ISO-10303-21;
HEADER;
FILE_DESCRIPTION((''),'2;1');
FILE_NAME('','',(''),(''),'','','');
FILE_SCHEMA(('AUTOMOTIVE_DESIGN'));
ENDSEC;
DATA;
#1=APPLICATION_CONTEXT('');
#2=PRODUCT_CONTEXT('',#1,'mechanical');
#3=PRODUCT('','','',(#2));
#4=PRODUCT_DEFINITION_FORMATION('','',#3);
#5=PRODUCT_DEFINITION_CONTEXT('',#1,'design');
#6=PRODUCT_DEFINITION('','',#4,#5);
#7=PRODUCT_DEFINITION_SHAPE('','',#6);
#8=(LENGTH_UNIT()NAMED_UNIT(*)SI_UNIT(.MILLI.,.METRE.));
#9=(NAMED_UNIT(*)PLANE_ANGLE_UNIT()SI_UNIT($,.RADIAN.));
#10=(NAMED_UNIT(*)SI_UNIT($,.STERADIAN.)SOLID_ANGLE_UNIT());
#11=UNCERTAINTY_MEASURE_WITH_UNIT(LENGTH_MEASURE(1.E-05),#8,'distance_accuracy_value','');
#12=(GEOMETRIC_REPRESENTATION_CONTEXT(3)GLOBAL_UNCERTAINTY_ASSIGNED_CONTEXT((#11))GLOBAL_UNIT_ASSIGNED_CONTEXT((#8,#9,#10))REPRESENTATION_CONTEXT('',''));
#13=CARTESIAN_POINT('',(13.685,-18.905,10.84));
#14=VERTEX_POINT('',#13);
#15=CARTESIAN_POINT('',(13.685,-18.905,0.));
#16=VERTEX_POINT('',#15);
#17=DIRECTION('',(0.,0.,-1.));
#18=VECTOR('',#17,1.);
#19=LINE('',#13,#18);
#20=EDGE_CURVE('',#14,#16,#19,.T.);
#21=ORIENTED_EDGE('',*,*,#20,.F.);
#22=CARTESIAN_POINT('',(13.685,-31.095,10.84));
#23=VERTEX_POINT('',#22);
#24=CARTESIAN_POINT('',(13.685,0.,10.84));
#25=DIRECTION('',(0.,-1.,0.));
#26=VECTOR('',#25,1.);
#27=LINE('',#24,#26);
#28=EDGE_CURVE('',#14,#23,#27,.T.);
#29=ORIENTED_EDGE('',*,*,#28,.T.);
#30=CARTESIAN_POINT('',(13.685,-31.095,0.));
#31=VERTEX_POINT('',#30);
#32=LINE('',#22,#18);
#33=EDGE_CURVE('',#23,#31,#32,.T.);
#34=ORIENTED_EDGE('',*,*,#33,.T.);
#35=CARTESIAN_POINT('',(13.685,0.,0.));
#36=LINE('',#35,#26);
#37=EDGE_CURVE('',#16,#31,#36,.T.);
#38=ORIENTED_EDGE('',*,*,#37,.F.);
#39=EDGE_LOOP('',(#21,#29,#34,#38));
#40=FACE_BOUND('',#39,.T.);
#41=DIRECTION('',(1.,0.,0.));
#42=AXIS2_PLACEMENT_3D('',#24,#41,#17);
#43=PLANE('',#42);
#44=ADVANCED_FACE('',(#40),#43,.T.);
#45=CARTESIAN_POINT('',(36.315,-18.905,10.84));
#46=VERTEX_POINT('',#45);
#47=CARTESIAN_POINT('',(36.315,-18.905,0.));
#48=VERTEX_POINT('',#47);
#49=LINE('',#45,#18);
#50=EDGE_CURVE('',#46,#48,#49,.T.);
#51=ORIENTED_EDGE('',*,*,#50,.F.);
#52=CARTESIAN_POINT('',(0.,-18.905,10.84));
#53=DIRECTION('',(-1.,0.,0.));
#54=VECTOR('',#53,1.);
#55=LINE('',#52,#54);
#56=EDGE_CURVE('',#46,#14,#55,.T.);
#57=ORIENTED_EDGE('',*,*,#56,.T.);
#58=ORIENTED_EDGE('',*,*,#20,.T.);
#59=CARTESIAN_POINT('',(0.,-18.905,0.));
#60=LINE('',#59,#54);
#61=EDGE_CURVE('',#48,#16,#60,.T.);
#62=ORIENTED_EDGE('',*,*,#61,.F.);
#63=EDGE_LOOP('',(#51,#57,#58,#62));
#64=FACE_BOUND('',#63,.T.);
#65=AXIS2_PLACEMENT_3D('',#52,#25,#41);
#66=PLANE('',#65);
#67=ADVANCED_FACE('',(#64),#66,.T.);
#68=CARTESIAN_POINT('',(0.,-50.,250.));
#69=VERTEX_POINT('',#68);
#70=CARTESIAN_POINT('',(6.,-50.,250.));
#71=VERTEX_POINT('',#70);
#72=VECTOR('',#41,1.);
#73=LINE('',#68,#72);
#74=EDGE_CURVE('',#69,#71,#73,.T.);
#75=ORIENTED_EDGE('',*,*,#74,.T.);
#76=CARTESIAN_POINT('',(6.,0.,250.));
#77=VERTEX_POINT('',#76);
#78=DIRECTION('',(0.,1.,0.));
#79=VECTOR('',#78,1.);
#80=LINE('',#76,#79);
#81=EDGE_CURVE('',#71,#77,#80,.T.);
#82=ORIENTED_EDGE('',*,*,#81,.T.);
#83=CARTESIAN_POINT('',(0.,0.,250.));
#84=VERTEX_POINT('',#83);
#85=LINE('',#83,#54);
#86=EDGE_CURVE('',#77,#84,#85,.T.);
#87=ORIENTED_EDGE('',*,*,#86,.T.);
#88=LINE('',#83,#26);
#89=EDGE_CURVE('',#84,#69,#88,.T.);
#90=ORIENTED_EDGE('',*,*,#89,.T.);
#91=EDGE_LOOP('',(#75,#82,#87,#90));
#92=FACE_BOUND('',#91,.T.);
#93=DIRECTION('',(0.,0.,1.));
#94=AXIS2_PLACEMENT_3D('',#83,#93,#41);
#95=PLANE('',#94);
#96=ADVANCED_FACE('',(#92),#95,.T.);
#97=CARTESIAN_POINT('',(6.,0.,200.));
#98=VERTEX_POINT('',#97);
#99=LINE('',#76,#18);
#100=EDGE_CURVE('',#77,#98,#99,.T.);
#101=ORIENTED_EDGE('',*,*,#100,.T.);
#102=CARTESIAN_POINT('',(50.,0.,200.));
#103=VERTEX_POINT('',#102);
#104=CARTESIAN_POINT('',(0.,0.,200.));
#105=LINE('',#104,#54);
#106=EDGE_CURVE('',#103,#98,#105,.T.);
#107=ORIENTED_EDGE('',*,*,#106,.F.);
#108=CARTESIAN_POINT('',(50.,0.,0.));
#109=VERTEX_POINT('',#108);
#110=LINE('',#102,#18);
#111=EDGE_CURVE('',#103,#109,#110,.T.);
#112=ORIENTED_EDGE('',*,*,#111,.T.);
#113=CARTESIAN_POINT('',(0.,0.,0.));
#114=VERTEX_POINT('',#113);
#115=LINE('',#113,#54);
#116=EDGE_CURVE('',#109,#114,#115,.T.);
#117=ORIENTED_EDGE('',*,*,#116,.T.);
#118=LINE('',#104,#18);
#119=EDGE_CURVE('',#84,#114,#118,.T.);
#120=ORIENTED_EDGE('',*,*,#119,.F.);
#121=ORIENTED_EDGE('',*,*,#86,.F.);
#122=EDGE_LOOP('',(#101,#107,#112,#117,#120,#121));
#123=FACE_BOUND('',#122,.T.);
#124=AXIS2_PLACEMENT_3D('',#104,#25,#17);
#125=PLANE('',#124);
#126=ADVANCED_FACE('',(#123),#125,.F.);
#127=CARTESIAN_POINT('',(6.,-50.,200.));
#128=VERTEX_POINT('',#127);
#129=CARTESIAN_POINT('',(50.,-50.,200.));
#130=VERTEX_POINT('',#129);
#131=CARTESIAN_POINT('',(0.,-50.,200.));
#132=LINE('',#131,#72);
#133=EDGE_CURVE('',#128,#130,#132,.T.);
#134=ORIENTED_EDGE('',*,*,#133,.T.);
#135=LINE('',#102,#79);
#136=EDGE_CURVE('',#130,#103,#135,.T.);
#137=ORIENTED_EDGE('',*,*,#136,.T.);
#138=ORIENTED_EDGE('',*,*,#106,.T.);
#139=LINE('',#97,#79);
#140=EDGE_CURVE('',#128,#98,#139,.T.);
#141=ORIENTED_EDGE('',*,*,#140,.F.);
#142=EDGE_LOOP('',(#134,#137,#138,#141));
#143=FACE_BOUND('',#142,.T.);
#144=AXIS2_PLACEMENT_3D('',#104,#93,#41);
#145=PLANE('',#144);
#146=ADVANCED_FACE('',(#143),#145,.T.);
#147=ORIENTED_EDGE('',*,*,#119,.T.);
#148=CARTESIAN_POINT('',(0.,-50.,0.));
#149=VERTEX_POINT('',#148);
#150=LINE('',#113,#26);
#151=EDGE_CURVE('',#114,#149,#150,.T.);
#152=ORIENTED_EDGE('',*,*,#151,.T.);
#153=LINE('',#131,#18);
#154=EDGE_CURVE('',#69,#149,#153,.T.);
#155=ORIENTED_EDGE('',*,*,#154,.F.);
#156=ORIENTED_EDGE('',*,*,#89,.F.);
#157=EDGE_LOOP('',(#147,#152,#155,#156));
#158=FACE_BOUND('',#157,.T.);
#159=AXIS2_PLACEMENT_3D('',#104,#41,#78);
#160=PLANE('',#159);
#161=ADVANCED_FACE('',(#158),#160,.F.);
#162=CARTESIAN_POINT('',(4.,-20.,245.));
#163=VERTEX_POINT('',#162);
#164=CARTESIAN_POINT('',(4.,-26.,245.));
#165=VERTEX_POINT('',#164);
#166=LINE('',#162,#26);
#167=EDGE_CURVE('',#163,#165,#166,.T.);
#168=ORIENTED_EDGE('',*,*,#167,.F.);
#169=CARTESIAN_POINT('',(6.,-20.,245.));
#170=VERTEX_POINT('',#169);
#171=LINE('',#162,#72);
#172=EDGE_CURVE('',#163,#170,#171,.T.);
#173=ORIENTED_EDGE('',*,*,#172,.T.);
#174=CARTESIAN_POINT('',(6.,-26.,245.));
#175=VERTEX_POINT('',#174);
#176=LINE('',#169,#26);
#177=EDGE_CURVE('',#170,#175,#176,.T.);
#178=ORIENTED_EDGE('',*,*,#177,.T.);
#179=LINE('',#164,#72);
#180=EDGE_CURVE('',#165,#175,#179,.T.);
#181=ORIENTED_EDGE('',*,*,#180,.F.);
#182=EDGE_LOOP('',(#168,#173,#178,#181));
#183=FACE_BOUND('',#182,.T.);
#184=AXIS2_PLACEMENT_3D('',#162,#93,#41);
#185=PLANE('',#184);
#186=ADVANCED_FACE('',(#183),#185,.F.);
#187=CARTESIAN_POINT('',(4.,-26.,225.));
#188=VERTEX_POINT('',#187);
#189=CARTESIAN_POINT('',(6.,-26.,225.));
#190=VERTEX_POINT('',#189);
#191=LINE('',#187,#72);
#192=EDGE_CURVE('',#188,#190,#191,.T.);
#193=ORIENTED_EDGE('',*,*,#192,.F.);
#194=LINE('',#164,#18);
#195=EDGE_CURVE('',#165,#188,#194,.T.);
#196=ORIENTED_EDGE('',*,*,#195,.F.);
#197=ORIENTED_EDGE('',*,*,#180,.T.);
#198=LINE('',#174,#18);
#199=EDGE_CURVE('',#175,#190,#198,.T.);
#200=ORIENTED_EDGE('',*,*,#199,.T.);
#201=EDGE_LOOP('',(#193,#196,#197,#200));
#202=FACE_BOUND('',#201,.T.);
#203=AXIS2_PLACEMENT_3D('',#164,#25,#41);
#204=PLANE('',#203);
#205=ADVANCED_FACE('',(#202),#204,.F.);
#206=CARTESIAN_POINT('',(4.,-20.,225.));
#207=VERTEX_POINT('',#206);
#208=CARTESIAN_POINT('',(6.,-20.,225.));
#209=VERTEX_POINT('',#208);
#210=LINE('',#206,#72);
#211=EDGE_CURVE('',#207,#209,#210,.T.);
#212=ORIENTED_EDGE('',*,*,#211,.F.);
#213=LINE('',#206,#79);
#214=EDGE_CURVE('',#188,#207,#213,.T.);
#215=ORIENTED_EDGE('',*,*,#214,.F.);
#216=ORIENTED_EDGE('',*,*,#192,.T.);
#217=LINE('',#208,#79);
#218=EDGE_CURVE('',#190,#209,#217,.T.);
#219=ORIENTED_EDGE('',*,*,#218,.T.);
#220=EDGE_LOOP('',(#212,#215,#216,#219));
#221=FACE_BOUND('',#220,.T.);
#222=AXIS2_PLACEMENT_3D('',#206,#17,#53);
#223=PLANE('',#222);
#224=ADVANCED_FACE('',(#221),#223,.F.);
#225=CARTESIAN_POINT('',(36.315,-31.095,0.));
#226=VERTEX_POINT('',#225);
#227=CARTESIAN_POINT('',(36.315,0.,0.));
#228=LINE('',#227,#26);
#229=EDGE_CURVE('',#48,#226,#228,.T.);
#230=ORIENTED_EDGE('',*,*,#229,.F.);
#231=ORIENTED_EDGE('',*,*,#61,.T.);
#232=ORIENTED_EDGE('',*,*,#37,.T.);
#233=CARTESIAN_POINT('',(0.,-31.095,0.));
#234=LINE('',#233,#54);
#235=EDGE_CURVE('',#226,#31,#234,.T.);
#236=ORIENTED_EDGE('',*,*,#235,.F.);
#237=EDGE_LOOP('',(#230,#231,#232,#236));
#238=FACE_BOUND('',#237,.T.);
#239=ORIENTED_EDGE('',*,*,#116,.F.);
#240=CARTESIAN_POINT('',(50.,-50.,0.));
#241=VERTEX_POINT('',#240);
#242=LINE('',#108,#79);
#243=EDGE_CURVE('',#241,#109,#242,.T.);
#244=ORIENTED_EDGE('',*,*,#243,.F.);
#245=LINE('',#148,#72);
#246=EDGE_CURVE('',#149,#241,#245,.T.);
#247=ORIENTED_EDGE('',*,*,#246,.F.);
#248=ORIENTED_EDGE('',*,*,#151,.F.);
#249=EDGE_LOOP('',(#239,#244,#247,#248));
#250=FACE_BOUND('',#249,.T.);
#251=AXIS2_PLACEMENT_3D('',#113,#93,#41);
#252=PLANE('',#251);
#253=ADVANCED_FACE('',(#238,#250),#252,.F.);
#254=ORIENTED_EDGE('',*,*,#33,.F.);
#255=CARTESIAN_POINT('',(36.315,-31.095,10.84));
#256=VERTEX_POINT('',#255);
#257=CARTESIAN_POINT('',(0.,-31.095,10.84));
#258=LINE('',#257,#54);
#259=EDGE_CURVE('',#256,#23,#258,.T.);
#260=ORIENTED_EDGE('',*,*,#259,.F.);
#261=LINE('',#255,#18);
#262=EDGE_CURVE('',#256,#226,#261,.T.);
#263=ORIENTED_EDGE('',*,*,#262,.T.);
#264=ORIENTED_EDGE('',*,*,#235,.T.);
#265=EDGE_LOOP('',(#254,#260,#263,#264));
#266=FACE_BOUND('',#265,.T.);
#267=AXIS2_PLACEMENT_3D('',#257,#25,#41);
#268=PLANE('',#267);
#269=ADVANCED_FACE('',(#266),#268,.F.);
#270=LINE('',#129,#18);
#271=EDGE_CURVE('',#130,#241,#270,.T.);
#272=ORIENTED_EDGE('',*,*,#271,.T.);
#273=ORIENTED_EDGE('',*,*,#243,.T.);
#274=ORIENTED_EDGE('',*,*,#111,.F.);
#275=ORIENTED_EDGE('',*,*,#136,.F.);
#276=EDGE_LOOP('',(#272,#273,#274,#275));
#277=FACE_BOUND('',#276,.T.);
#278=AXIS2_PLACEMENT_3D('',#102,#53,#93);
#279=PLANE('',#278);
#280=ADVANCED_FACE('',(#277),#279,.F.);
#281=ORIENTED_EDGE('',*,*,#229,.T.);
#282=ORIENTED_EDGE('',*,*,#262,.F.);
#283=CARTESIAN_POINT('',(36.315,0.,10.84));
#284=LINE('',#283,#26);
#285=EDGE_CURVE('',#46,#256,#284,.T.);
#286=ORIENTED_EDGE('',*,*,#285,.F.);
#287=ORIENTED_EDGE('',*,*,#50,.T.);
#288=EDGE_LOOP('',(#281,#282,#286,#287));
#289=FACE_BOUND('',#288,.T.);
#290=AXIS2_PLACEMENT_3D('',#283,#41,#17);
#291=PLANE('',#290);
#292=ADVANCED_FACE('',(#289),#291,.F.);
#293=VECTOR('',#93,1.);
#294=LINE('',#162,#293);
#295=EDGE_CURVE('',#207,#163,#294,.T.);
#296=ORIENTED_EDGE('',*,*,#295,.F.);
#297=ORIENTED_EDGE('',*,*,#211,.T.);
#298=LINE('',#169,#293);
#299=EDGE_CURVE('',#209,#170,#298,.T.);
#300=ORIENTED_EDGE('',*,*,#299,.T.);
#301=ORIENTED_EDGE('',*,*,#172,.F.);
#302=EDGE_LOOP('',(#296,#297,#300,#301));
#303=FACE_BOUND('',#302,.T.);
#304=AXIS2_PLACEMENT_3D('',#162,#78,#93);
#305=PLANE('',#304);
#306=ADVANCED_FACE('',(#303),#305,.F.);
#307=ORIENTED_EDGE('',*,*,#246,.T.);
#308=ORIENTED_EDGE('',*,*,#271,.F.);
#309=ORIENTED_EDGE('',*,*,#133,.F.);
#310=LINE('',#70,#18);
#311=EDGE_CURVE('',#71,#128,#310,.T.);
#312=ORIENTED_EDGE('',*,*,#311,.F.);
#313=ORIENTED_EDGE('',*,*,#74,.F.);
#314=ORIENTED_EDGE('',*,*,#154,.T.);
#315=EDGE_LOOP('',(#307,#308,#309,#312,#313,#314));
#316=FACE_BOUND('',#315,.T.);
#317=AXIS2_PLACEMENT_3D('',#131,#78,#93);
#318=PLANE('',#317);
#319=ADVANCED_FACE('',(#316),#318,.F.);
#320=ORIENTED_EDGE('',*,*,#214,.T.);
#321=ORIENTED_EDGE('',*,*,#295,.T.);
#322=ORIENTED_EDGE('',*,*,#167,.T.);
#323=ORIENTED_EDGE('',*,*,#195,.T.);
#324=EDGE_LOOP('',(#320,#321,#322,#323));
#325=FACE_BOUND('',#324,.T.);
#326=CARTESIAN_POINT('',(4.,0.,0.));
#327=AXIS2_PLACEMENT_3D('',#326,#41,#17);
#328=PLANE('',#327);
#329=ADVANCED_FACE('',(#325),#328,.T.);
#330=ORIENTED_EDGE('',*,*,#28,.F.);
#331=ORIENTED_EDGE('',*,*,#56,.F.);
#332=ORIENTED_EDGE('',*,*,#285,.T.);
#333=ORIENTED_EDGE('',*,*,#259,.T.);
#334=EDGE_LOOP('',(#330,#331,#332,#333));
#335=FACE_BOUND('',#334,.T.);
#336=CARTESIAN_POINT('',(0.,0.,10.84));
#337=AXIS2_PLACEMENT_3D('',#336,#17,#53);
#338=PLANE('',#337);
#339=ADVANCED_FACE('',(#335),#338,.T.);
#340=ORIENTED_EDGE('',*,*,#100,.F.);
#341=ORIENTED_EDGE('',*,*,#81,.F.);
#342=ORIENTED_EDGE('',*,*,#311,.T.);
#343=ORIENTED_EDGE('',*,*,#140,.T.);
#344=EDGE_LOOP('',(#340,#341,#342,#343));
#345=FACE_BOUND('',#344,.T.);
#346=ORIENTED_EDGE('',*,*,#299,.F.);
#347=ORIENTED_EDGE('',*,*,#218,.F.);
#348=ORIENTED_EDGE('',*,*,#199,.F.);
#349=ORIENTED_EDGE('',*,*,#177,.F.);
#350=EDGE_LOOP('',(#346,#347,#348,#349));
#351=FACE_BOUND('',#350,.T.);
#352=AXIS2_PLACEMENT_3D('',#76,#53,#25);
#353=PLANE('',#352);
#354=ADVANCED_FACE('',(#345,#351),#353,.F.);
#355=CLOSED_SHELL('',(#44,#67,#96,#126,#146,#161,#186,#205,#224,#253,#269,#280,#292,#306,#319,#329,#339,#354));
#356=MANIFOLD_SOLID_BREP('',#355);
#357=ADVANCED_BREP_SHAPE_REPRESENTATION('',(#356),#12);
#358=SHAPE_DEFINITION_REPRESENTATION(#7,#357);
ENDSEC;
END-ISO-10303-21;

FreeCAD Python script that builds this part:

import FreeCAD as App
import Part
import Sketcher

V = App.Vector
Q = App.Units.Quantity


def add_polygon(sketch, points):
    """Adds a closed chain of lines whose ends are joined by coincident constraints."""
    first, n = sketch.GeometryCount, len(points)
    for a, b in zip(points, points[1:] + points[:1]):
        sketch.addGeometry(Part.LineSegment(App.Vector(*a, 0), App.Vector(*b, 0)), False)
    for i in range(n):
        sketch.addConstraint(Sketcher.Constraint("Coincident", first + i, 2, first + (i + 1) % n, 1))

doc = App.newDocument("Part")
body = doc.addObject("PartDesign::Body", "Body")

sketch1 = body.newObject("Sketcher::SketchObject", "Sketch")
sketch1.AttachmentSupport = (doc.getObject("XY_Plane"), [""])
sketch1.MapMode = "FlatFace"
add_polygon(sketch1, [(0, 0), (0, -50), (50, -50), (50, 0)])
sketch1.addConstraint([
    Sketcher.Constraint("Vertical", 0),
    Sketcher.Constraint("Horizontal", 1),
    Sketcher.Constraint("Vertical", 2),
    Sketcher.Constraint("Horizontal", 3),
    Sketcher.Constraint("Coincident", 3, 2, -1, 1),
    Sketcher.Constraint("Equal", 3, 0),
    Sketcher.Constraint("DistanceX", 1, 1, 1, 2, Q("50 mm")),
])
pad1 = body.newObject("PartDesign::Pad", "Pad")
pad1.Profile = sketch1
pad1.Length = 200

sketch2 = body.newObject("Sketcher::SketchObject", "Sketch001")
sketch2.AttachmentSupport = (doc.getObject("XY_Plane"), [""])
sketch2.MapMode = "FlatFace"
sketch2.AttachmentOffset = App.Placement(V(0, 0, 200), App.Rotation())
add_polygon(sketch2, [(0, 0), (0, -50), (6, -50), (6, 0)])
sketch2.addConstraint([
    Sketcher.Constraint("Vertical", 0),
    Sketcher.Constraint("Horizontal", 1),
    Sketcher.Constraint("Vertical", 2),
    Sketcher.Constraint("Horizontal", 3),
    Sketcher.Constraint("Coincident", 3, 2, -1, 1),
    Sketcher.Constraint("DistanceX", 1, 1, 1, 2, Q("6 mm")),
    Sketcher.Constraint("DistanceY", 0, 2, 0, 1, Q("50 mm")),
])
pad2 = body.newObject("PartDesign::Pad", "Pad001")
pad2.Profile = sketch2
pad2.Length = 50

sketch3 = body.newObject("Sketcher::SketchObject", "Sketch002")
sketch3.AttachmentSupport = (doc.getObject("YZ_Plane"), [""])
sketch3.MapMode = "FlatFace"
sketch3.AttachmentOffset = App.Placement(V(0, 0, 6), App.Rotation())
add_polygon(sketch3, [(-20, 245), (-26, 245), (-26, 225), (-20, 225)])
sketch3.addConstraint([
    Sketcher.Constraint("Horizontal", 0),
    Sketcher.Constraint("Vertical", 1),
    Sketcher.Constraint("Horizontal", 2),
    Sketcher.Constraint("Vertical", 3),
    Sketcher.Constraint("DistanceX", 0, 2, 0, 1, Q("6 mm")),
    Sketcher.Constraint("DistanceY", 1, 2, 1, 1, Q("20 mm")),
    Sketcher.Constraint("DistanceX", 0, 2, -1, 1, Q("26 mm")),
    Sketcher.Constraint("DistanceY", -1, 1, 0, 2, Q("245 mm")),
])
pocket1 = body.newObject("PartDesign::Pocket", "Pocket")
pocket1.Profile = sketch3
pocket1.Length = 2

sketch4 = body.newObject("Sketcher::SketchObject", "Sketch003")
sketch4.AttachmentSupport = (doc.getObject("XY_Plane"), [""])
sketch4.MapMode = "FlatFace"
add_polygon(sketch4, [(36, -19), (36, -31), (14, -31), (14, -19)])
sketch4.addConstraint([
    Sketcher.Constraint("Vertical", 0),
    Sketcher.Constraint("Horizontal", 1),
    Sketcher.Constraint("Vertical", 2),
    Sketcher.Constraint("Horizontal", 3),
    Sketcher.Constraint("DistanceX", 1, 2, 1, 1, Q("22.63 mm")),
    Sketcher.Constraint("DistanceY", 0, 2, 0, 1, Q("12.19 mm")),
    Sketcher.Constraint("DistanceX", -1, 1, 0, 2, Q("36.315 mm")),
    Sketcher.Constraint("DistanceY", 0, 2, -1, 1, Q("31.095 mm")),
])
pocket2 = body.newObject("PartDesign::Pocket", "Pocket001")
pocket2.Profile = sketch4
pocket2.Length = 10.84
pocket2.Reversed = True

doc.recompute()
